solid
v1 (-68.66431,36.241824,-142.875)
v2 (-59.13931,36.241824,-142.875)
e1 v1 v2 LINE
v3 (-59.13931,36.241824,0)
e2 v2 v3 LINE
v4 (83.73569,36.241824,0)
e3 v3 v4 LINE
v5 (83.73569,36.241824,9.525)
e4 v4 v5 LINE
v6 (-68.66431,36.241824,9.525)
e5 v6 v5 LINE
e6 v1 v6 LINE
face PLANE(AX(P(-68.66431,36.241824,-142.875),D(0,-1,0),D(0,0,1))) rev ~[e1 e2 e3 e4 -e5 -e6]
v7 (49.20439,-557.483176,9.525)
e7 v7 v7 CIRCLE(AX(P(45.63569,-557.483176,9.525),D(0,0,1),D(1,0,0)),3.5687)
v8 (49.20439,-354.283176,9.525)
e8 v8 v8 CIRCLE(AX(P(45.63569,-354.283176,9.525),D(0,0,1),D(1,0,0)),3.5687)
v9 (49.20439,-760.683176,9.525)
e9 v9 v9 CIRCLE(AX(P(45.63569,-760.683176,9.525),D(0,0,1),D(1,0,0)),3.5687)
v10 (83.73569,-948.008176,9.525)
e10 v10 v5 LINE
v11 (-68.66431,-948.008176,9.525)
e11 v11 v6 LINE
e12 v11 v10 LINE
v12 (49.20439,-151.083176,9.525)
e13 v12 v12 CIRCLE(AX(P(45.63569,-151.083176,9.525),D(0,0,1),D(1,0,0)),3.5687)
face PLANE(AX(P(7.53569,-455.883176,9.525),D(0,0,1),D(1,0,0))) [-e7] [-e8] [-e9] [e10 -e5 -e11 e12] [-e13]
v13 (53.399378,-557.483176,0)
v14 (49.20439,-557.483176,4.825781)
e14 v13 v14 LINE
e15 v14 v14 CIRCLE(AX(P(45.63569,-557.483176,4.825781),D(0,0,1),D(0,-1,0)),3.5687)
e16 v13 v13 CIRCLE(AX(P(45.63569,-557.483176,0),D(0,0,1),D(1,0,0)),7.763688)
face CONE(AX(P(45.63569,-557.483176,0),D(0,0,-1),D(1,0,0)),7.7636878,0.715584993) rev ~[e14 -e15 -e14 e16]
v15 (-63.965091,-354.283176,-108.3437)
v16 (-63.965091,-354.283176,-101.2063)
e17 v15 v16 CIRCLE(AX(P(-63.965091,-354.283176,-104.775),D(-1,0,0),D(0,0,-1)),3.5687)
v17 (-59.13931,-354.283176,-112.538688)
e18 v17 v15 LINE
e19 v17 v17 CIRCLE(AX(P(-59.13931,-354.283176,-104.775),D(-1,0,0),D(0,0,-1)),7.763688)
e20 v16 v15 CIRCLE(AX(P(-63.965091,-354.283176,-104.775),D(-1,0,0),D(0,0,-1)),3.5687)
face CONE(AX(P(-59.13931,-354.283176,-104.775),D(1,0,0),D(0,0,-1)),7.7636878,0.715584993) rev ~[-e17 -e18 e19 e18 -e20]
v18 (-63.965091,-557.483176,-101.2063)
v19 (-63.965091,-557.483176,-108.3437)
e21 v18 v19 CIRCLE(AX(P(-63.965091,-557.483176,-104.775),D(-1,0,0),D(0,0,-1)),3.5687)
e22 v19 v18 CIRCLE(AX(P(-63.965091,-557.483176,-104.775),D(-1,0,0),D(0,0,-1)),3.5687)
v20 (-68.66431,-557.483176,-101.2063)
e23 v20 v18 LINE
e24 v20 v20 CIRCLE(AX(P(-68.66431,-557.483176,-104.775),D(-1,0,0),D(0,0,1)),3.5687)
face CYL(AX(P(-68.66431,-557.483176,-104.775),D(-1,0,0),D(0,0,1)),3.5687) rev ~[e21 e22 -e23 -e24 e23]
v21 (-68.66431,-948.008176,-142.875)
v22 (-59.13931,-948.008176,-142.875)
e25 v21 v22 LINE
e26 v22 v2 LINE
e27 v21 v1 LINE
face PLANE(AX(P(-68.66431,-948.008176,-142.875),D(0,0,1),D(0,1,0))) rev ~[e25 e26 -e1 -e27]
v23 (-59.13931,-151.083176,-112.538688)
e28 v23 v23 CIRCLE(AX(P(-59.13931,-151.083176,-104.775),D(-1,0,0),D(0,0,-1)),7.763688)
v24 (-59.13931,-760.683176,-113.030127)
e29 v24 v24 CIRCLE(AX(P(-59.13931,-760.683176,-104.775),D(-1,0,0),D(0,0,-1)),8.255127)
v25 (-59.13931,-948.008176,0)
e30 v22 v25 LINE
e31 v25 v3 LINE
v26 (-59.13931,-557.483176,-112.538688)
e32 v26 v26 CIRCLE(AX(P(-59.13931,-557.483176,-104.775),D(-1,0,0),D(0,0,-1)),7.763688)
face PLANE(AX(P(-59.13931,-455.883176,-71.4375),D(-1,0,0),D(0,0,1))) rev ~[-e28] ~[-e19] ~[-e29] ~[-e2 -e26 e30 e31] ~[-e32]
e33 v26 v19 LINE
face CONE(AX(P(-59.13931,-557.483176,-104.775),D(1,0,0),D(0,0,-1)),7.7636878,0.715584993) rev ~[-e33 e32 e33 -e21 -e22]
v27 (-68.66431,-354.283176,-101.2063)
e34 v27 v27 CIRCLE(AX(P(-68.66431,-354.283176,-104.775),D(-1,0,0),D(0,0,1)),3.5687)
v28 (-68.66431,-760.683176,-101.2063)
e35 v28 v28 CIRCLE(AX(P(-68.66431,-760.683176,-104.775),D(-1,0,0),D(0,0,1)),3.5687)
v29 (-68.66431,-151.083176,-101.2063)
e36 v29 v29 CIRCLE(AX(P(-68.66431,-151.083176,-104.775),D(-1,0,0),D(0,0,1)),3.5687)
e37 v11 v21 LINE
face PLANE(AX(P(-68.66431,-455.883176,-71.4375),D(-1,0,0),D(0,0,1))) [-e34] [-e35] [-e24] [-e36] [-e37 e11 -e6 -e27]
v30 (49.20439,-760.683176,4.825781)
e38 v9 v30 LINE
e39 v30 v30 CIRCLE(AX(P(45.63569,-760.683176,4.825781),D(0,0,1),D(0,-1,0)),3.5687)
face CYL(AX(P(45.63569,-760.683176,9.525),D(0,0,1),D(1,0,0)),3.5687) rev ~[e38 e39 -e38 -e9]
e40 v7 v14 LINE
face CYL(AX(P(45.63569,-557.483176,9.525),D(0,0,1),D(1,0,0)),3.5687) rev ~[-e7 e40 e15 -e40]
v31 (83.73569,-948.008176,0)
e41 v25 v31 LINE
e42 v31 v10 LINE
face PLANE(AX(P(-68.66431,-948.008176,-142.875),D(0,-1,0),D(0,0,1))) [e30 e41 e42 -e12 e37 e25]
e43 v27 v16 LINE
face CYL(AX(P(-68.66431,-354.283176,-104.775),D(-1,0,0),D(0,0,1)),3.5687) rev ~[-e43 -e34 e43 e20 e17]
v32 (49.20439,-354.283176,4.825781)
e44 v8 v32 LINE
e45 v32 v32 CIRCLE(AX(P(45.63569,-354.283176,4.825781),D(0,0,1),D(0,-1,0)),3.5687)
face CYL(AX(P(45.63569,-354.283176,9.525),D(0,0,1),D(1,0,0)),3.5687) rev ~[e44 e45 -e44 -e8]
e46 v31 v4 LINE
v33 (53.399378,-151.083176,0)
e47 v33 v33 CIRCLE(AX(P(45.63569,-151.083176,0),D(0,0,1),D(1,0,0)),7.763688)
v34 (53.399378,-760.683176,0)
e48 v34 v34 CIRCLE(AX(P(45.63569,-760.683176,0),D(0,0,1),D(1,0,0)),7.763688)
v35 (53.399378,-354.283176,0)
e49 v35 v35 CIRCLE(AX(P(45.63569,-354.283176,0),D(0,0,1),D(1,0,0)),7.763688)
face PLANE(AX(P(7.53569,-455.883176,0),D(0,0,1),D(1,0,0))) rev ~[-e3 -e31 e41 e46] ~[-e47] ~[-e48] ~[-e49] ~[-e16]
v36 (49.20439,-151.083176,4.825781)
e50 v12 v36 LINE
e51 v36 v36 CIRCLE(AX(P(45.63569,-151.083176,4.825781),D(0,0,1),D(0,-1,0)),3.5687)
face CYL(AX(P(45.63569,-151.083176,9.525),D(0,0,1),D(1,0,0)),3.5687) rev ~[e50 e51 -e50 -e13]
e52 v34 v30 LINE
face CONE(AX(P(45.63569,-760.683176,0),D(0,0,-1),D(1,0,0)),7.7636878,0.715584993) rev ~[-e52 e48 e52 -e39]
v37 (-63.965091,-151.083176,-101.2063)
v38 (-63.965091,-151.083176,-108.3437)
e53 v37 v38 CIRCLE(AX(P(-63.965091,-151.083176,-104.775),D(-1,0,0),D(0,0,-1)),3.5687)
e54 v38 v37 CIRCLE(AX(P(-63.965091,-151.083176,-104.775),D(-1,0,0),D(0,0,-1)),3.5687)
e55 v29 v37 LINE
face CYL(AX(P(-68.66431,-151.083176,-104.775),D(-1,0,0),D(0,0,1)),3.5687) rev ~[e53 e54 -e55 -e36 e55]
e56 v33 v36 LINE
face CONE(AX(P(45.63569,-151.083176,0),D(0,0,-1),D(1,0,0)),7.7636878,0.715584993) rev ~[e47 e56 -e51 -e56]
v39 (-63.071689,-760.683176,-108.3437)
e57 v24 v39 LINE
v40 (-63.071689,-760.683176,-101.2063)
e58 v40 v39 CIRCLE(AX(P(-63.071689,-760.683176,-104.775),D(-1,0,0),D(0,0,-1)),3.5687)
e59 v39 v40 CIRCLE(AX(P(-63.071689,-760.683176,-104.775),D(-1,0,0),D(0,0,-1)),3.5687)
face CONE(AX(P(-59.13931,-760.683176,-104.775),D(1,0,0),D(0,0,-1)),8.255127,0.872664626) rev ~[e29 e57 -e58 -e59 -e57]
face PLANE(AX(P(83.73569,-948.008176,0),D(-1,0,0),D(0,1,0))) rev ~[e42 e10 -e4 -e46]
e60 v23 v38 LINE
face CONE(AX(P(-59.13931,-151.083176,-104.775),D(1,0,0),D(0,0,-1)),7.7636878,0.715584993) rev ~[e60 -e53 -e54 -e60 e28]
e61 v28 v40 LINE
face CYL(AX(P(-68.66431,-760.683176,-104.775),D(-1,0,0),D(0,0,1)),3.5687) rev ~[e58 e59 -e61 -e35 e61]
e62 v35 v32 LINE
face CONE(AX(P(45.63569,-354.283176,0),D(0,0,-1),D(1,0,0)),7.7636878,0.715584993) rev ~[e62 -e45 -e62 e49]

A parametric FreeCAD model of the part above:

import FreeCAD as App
import Part
import Sketcher
Q = App.Units.Quantity

doc = App.newDocument("Part")
params = doc.addObject("Spreadsheet::Sheet", "Params")
for row, (alias, value) in enumerate([
    ("sketch1_width", "6 in"),
    ("sketch1_height", "38.75 in"),
    ("pad1_length", "0.375 in"),
    ("sketch2_width", "38.75 in"),
    ("sketch2_height", "5.625 in"),
    ("pad2_length", "0.375 in"),
    ("sketch3_diameter", "0.281 in"),
    ("pocket1_length", "0.375 in"),
    ("sketch4_diameter", "0.281 in"),
    ("pocket2_length", "0.375 in"),
    ("sketch5_diameter", "0.266 in"),
    ("hole_diameter", "0.266 in"),
    ("hole_csink_diameter", "15.527376 mm"),
    ("sketch6_diameter", "0.266 in"),
    ("hole2_diameter", "0.266 in"),
    ("hole2_csink_diameter", "15.527376 mm"),
    ("sketch7_diameter", "0.266 in"),
    ("hole3_diameter", "0.266 in"),
    ("hole3_csink_diameter", "16.510254 mm"),
    ("sketch8_diameter", "0.266 in"),
    ("hole4_diameter", "0.266 in"),
    ("hole4_csink_diameter", "15.527376 mm"),
    ("sketch9_diameter", "0.266 in"),
    ("hole5_diameter", "0.266 in"),
    ("hole5_csink_diameter", "15.527376 mm"),
    ("sketch10_diameter", "0.266 in"),
    ("hole6_diameter", "0.266 in"),
    ("hole6_csink_diameter", "15.527376 mm"),
    ("sketch11_diameter", "0.266 in"),
    ("hole7_diameter", "0.266 in"),
    ("hole7_csink_diameter", "15.527376 mm"),
    ("sketch12_diameter", "0.266 in"),
    ("hole8_diameter", "0.266 in"),
    ("hole8_csink_diameter", "15.527376 mm"),
], start=1):
    params.set(f"A{row}", alias)
    params.set(f"B{row}", "=" + value)
    params.setAlias(f"B{row}", alias)

body = doc.addObject("PartDesign::Body", "Body")

sketch1 = body.newObject("Sketcher::SketchObject", "Sketch")
sketch1.AttachmentSupport = (doc.getObject("XY_Plane"), [""])
sketch1.MapMode = "FlatFace"
sketch1.addGeometry(Part.LineSegment(App.Vector(-69, 36, 0), App.Vector(-69, -948, 0)), False)
sketch1.addGeometry(Part.LineSegment(App.Vector(-69, -948, 0), App.Vector(84, -948, 0)), False)
sketch1.addGeometry(Part.LineSegment(App.Vector(84, -948, 0), App.Vector(84, 36, 0)), False)
sketch1.addGeometry(Part.LineSegment(App.Vector(84, 36, 0), App.Vector(-69, 36, 0)), False)
sketch1.addConstraint(Sketcher.Constraint("Coincident", 0, 2, 1, 1))
sketch1.addConstraint(Sketcher.Constraint("Coincident", 1, 2, 2, 1))
sketch1.addConstraint(Sketcher.Constraint("Coincident", 2, 2, 3, 1))
sketch1.addConstraint(Sketcher.Constraint("Coincident", 3, 2, 0, 1))
sketch1.addConstraint(Sketcher.Constraint("Vertical", 0))
sketch1.addConstraint(Sketcher.Constraint("Horizontal", 1))
sketch1.addConstraint(Sketcher.Constraint("Vertical", 2))
sketch1.addConstraint(Sketcher.Constraint("Horizontal", 3))
sketch1.addConstraint(Sketcher.Constraint("DistanceX", 1, 1, 1, 2, Q("6 in")))
sketch1.addConstraint(Sketcher.Constraint("DistanceY", 0, 2, 0, 1, Q("38.75 in")))
sketch1.addConstraint(Sketcher.Constraint("DistanceX", 0, 2, -1, 1, Q("68.66431 mm")))
sketch1.addConstraint(Sketcher.Constraint("DistanceY", 0, 2, -1, 1, Q("948.008176 mm")))
sketch1.setExpression("Constraints[8]", "Params.sketch1_width")
sketch1.setExpression("Constraints[9]", "Params.sketch1_height")
pad1 = body.newObject("PartDesign::Pad", "Pad")
pad1.Profile = sketch1
pad1.setExpression("Length", "Params.pad1_length")

sketch2 = body.newObject("Sketcher::SketchObject", "Sketch001")
sketch2.AttachmentSupport = (doc.getObject("YZ_Plane"), [""])
sketch2.MapMode = "FlatFace"
sketch2.AttachmentOffset = App.Placement(App.Vector(0, 0, -68.66431), App.Rotation())
sketch2.addGeometry(Part.LineSegment(App.Vector(36, -143, 0), App.Vector(-948, -143, 0)), False)
sketch2.addGeometry(Part.LineSegment(App.Vector(-948, -143, 0), App.Vector(-948, 0, 0)), False)
sketch2.addGeometry(Part.LineSegment(App.Vector(-948, 0, 0), App.Vector(36, 0, 0)), False)
sketch2.addGeometry(Part.LineSegment(App.Vector(36, 0, 0), App.Vector(36, -143, 0)), False)
sketch2.addConstraint(Sketcher.Constraint("Coincident", 0, 2, 1, 1))
sketch2.addConstraint(Sketcher.Constraint("Coincident", 1, 2, 2, 1))
sketch2.addConstraint(Sketcher.Constraint("Coincident", 2, 2, 3, 1))
sketch2.addConstraint(Sketcher.Constraint("Coincident", 3, 2, 0, 1))
sketch2.addConstraint(Sketcher.Constraint("Horizontal", 0))
sketch2.addConstraint(Sketcher.Constraint("Vertical", 1))
sketch2.addConstraint(Sketcher.Constraint("Horizontal", 2))
sketch2.addConstraint(Sketcher.Constraint("Vertical", 3))
sketch2.addConstraint(Sketcher.Constraint("PointOnObject", 1, 2, -1))
sketch2.addConstraint(Sketcher.Constraint("DistanceX", 0, 2, 0, 1, Q("38.75 in")))
sketch2.addConstraint(Sketcher.Constraint("DistanceY", 1, 1, 1, 2, Q("5.625 in")))
sketch2.addConstraint(Sketcher.Constraint("DistanceX", 0, 2, -1, 1, Q("948.008176 mm")))
sketch2.setExpression("Constraints[9]", "Params.sketch2_width")
sketch2.setExpression("Constraints[10]", "Params.sketch2_height")
pad2 = body.newObject("PartDesign::Pad", "Pad001")
pad2.Profile = sketch2
pad2.setExpression("Length", "Params.pad2_length")

sketch3 = body.newObject("Sketcher::SketchObject", "Sketch002")
sketch3.AttachmentSupport = (doc.getObject("YZ_Plane"), [""])
sketch3.MapMode = "FlatFace"
sketch3.AttachmentOffset = App.Placement(App.Vector(0, 0, -68.66431), App.Rotation())
sketch3.addGeometry(Part.Circle(App.Vector(-151.1, -104.8, 0), App.Vector(0, 0, 1), 3.6), False)
sketch3.addGeometry(Part.Circle(App.Vector(-354.3, -104.8, 0), App.Vector(0, 0, 1), 3.6), False)
sketch3.addGeometry(Part.Circle(App.Vector(-557.5, -104.8, 0), App.Vector(0, 0, 1), 3.6), False)
sketch3.addGeometry(Part.Circle(App.Vector(-760.7, -104.8, 0), App.Vector(0, 0, 1), 3.6), False)
sketch3.addConstraint(Sketcher.Constraint("Equal", 0, 1))
sketch3.addConstraint(Sketcher.Constraint("Equal", 1, 2))
sketch3.addConstraint(Sketcher.Constraint("Equal", 2, 3))
sketch3.addConstraint(Sketcher.Constraint("Horizontal", 0, 3, 1, 3))
sketch3.addConstraint(Sketcher.Constraint("Horizontal", 1, 3, 2, 3))
sketch3.addConstraint(Sketcher.Constraint("Horizontal", 2, 3, 3, 3))
sketch3.addConstraint(Sketcher.Constraint("Diameter", 0, Q("0.281 in")))
sketch3.addConstraint(Sketcher.Constraint("DistanceX", 1, 3, 0, 3, Q("8 in")))
sketch3.addConstraint(Sketcher.Constraint("DistanceX", 2, 3, 1, 3, Q("8 in")))
sketch3.addConstraint(Sketcher.Constraint("DistanceX", 3, 3, 2, 3, Q("8 in")))
sketch3.addConstraint(Sketcher.Constraint("DistanceY", 0, 3, -1, 1, Q("4.125 in")))
sketch3.addConstraint(Sketcher.Constraint("DistanceX", 0, 3, -1, 1, Q("151.083176 mm")))
sketch3.setExpression("Constraints[6]", "Params.sketch3_diameter")
pocket1 = body.newObject("PartDesign::Pocket", "Pocket")
pocket1.Profile = sketch3
pocket1.setExpression("Length", "Params.pocket1_length")
pocket1.Reversed = True

sketch4 = body.newObject("Sketcher::SketchObject", "Sketch003")
sketch4.AttachmentSupport = (doc.getObject("XY_Plane"), [""])
sketch4.MapMode = "FlatFace"
sketch4.AttachmentOffset = App.Placement(App.Vector(0, 0, 0.375 * 25.4), App.Rotation())
sketch4.addGeometry(Part.Circle(App.Vector(45.6, -151.1, 0), App.Vector(0, 0, 1), 3.6), False)
sketch4.addGeometry(Part.Circle(App.Vector(45.6, -354.3, 0), App.Vector(0, 0, 1), 3.6), False)
sketch4.addGeometry(Part.Circle(App.Vector(45.6, -557.5, 0), App.Vector(0, 0, 1), 3.6), False)
sketch4.addGeometry(Part.Circle(App.Vector(45.6, -760.7, 0), App.Vector(0, 0, 1), 3.6), False)
sketch4.addConstraint(Sketcher.Constraint("Equal", 0, 1))
sketch4.addConstraint(Sketcher.Constraint("Equal", 1, 2))
sketch4.addConstraint(Sketcher.Constraint("Equal", 2, 3))
sketch4.addConstraint(Sketcher.Constraint("Vertical", 0, 3, 1, 3))
sketch4.addConstraint(Sketcher.Constraint("Vertical", 1, 3, 2, 3))
sketch4.addConstraint(Sketcher.Constraint("Vertical", 2, 3, 3, 3))
sketch4.addConstraint(Sketcher.Constraint("Diameter", 0, Q("0.281 in")))
sketch4.addConstraint(Sketcher.Constraint("DistanceY", 1, 3, 0, 3, Q("8 in")))
sketch4.addConstraint(Sketcher.Constraint("DistanceY", 2, 3, 1, 3, Q("8 in")))
sketch4.addConstraint(Sketcher.Constraint("DistanceY", 3, 3, 2, 3, Q("8 in")))
sketch4.addConstraint(Sketcher.Constraint("DistanceX", -1, 1, 0, 3, Q("45.63569 mm")))
sketch4.addConstraint(Sketcher.Constraint("DistanceY", 0, 3, -1, 1, Q("151.083176 mm")))
sketch4.setExpression("Constraints[6]", "Params.sketch4_diameter")
pocket2 = body.newObject("PartDesign::Pocket", "Pocket001")
pocket2.Profile = sketch4
pocket2.setExpression("Length", "Params.pocket2_length")

sketch5 = body.newObject("Sketcher::SketchObject", "Sketch004")
sketch5.AttachmentSupport = (doc.getObject("YZ_Plane"), [""])
sketch5.MapMode = "FlatFace"
sketch5.AttachmentOffset = App.Placement(App.Vector(0, 0, -59.13931), App.Rotation())
sketch5.addGeometry(Part.Circle(App.Vector(-151.1, -104.8, 0), App.Vector(0, 0, 1), 3.4), False)
sketch5.addConstraint(Sketcher.Constraint("Diameter", 0, Q("0.266 in")))
sketch5.addConstraint(Sketcher.Constraint("DistanceY", 0, 3, -1, 1, Q("4.125 in")))
sketch5.addConstraint(Sketcher.Constraint("DistanceX", 0, 3, -1, 1, Q("151.083176 mm")))
sketch5.setExpression("Constraints[0]", "Params.sketch5_diameter")
doc.recompute()
hole = body.newObject("PartDesign::Hole", "Hole")
hole.Profile = sketch5
hole.ThreadType = "None"
hole.setExpression("Diameter", "Params.hole_diameter")
hole.DepthType = "ThroughAll"
hole.HoleCutType = "Countersink"
hole.setExpression("HoleCutDiameter", "Params.hole_csink_diameter")
hole.HoleCutCountersinkAngle = 82

sketch6 = body.newObject("Sketcher::SketchObject", "Sketch005")
sketch6.AttachmentSupport = (doc.getObject("YZ_Plane"), [""])
sketch6.MapMode = "FlatFace"
sketch6.AttachmentOffset = App.Placement(App.Vector(0, 0, -59.13931), App.Rotation())
sketch6.addGeometry(Part.Circle(App.Vector(-354.3, -104.8, 0), App.Vector(0, 0, 1), 3.4), False)
sketch6.addConstraint(Sketcher.Constraint("Diameter", 0, Q("0.266 in")))
sketch6.addConstraint(Sketcher.Constraint("DistanceY", 0, 3, -1, 1, Q("4.125 in")))
sketch6.addConstraint(Sketcher.Constraint("DistanceX", 0, 3, -1, 1, Q("354.283176 mm")))
sketch6.setExpression("Constraints[0]", "Params.sketch6_diameter")
doc.recompute()
hole2 = body.newObject("PartDesign::Hole", "Hole001")
hole2.Profile = sketch6
hole2.ThreadType = "None"
hole2.setExpression("Diameter", "Params.hole2_diameter")
hole2.DepthType = "ThroughAll"
hole2.HoleCutType = "Countersink"
hole2.setExpression("HoleCutDiameter", "Params.hole2_csink_diameter")
hole2.HoleCutCountersinkAngle = 82

sketch7 = body.newObject("Sketcher::SketchObject", "Sketch006")
sketch7.AttachmentSupport = (doc.getObject("YZ_Plane"), [""])
sketch7.MapMode = "FlatFace"
sketch7.AttachmentOffset = App.Placement(App.Vector(0, 0, -59.13931), App.Rotation())
sketch7.addGeometry(Part.Circle(App.Vector(-760.7, -104.8, 0), App.Vector(0, 0, 1), 3.4), False)
sketch7.addConstraint(Sketcher.Constraint("Diameter", 0, Q("0.266 in")))
sketch7.addConstraint(Sketcher.Constraint("DistanceY", 0, 3, -1, 1, Q("4.125 in")))
sketch7.addConstraint(Sketcher.Constraint("DistanceX", 0, 3, -1, 1, Q("760.683176 mm")))
sketch7.setExpression("Constraints[0]", "Params.sketch7_diameter")
doc.recompute()
hole3 = body.newObject("PartDesign::Hole", "Hole002")
hole3.Profile = sketch7
hole3.ThreadType = "None"
hole3.setExpression("Diameter", "Params.hole3_diameter")
hole3.DepthType = "ThroughAll"
hole3.HoleCutType = "Countersink"
hole3.setExpression("HoleCutDiameter", "Params.hole3_csink_diameter")
hole3.HoleCutCountersinkAngle = 100

sketch8 = body.newObject("Sketcher::SketchObject", "Sketch007")
sketch8.AttachmentSupport = (doc.getObject("XY_Plane"), [""])
sketch8.MapMode = "FlatFace"
sketch8.addGeometry(Part.Circle(App.Vector(45.6, -151.1, 0), App.Vector(0, 0, 1), 3.4), False)
sketch8.addConstraint(Sketcher.Constraint("Diameter", 0, Q("0.266 in")))
sketch8.addConstraint(Sketcher.Constraint("DistanceX", -1, 1, 0, 3, Q("45.63569 mm")))
sketch8.addConstraint(Sketcher.Constraint("DistanceY", 0, 3, -1, 1, Q("151.083176 mm")))
sketch8.setExpression("Constraints[0]", "Params.sketch8_diameter")
doc.recompute()
hole4 = body.newObject("PartDesign::Hole", "Hole003")
hole4.Profile = sketch8
hole4.ThreadType = "None"
hole4.setExpression("Diameter", "Params.hole4_diameter")
hole4.DepthType = "ThroughAll"
hole4.HoleCutType = "Countersink"
hole4.setExpression("HoleCutDiameter", "Params.hole4_csink_diameter")
hole4.HoleCutCountersinkAngle = 82
hole4.Reversed = True

sketch9 = body.newObject("Sketcher::SketchObject", "Sketch008")
sketch9.AttachmentSupport = (doc.getObject("XY_Plane"), [""])
sketch9.MapMode = "FlatFace"
sketch9.addGeometry(Part.Circle(App.Vector(45.6, -354.3, 0), App.Vector(0, 0, 1), 3.4), False)
sketch9.addConstraint(Sketcher.Constraint("Diameter", 0, Q("0.266 in")))
sketch9.addConstraint(Sketcher.Constraint("DistanceX", -1, 1, 0, 3, Q("45.63569 mm")))
sketch9.addConstraint(Sketcher.Constraint("DistanceY", 0, 3, -1, 1, Q("354.283176 mm")))
sketch9.setExpression("Constraints[0]", "Params.sketch9_diameter")
doc.recompute()
hole5 = body.newObject("PartDesign::Hole", "Hole004")
hole5.Profile = sketch9
hole5.ThreadType = "None"
hole5.setExpression("Diameter", "Params.hole5_diameter")
hole5.DepthType = "ThroughAll"
hole5.HoleCutType = "Countersink"
hole5.setExpression("HoleCutDiameter", "Params.hole5_csink_diameter")
hole5.HoleCutCountersinkAngle = 82
hole5.Reversed = True

sketch10 = body.newObject("Sketcher::SketchObject", "Sketch009")
sketch10.AttachmentSupport = (doc.getObject("XY_Plane"), [""])
sketch10.MapMode = "FlatFace"
sketch10.addGeometry(Part.Circle(App.Vector(45.6, -557.5, 0), App.Vector(0, 0, 1), 3.4), False)
sketch10.addConstraint(Sketcher.Constraint("Diameter", 0, Q("0.266 in")))
sketch10.addConstraint(Sketcher.Constraint("DistanceX", -1, 1, 0, 3, Q("45.63569 mm")))
sketch10.addConstraint(Sketcher.Constraint("DistanceY", 0, 3, -1, 1, Q("557.483176 mm")))
sketch10.setExpression("Constraints[0]", "Params.sketch10_diameter")
doc.recompute()
hole6 = body.newObject("PartDesign::Hole", "Hole005")
hole6.Profile = sketch10
hole6.ThreadType = "None"
hole6.setExpression("Diameter", "Params.hole6_diameter")
hole6.DepthType = "ThroughAll"
hole6.HoleCutType = "Countersink"
hole6.setExpression("HoleCutDiameter", "Params.hole6_csink_diameter")
hole6.HoleCutCountersinkAngle = 82
hole6.Reversed = True

sketch11 = body.newObject("Sketcher::SketchObject", "Sketch010")
sketch11.AttachmentSupport = (doc.getObject("XY_Plane"), [""])
sketch11.MapMode = "FlatFace"
sketch11.addGeometry(Part.Circle(App.Vector(45.6, -760.7, 0), App.Vector(0, 0, 1), 3.4), False)
sketch11.addConstraint(Sketcher.Constraint("Diameter", 0, Q("0.266 in")))
sketch11.addConstraint(Sketcher.Constraint("DistanceX", -1, 1, 0, 3, Q("45.63569 mm")))
sketch11.addConstraint(Sketcher.Constraint("DistanceY", 0, 3, -1, 1, Q("760.683176 mm")))
sketch11.setExpression("Constraints[0]", "Params.sketch11_diameter")
doc.recompute()
hole7 = body.newObject("PartDesign::Hole", "Hole006")
hole7.Profile = sketch11
hole7.ThreadType = "None"
hole7.setExpression("Diameter", "Params.hole7_diameter")
hole7.DepthType = "ThroughAll"
hole7.HoleCutType = "Countersink"
hole7.setExpression("HoleCutDiameter", "Params.hole7_csink_diameter")
hole7.HoleCutCountersinkAngle = 82
hole7.Reversed = True

sketch12 = body.newObject("Sketcher::SketchObject", "Sketch011")
sketch12.AttachmentSupport = (doc.getObject("YZ_Plane"), [""])
sketch12.MapMode = "FlatFace"
sketch12.AttachmentOffset = App.Placement(App.Vector(0, 0, -59.13931), App.Rotation())
sketch12.addGeometry(Part.Circle(App.Vector(-557.5, -104.8, 0), App.Vector(0, 0, 1), 3.4), False)
sketch12.addConstraint(Sketcher.Constraint("Diameter", 0, Q("0.266 in")))
sketch12.addConstraint(Sketcher.Constraint("DistanceY", 0, 3, -1, 1, Q("4.125 in")))
sketch12.addConstraint(Sketcher.Constraint("DistanceX", 0, 3, -1, 1, Q("557.483176 mm")))
sketch12.setExpression("Constraints[0]", "Params.sketch12_diameter")
doc.recompute()
hole8 = body.newObject("PartDesign::Hole", "Hole007")
hole8.Profile = sketch12
hole8.ThreadType = "None"
hole8.setExpression("Diameter", "Params.hole8_diameter")
hole8.DepthType = "ThroughAll"
hole8.HoleCutType = "Countersink"
hole8.setExpression("HoleCutDiameter", "Params.hole8_csink_diameter")
hole8.HoleCutCountersinkAngle = 82

doc.recompute()
